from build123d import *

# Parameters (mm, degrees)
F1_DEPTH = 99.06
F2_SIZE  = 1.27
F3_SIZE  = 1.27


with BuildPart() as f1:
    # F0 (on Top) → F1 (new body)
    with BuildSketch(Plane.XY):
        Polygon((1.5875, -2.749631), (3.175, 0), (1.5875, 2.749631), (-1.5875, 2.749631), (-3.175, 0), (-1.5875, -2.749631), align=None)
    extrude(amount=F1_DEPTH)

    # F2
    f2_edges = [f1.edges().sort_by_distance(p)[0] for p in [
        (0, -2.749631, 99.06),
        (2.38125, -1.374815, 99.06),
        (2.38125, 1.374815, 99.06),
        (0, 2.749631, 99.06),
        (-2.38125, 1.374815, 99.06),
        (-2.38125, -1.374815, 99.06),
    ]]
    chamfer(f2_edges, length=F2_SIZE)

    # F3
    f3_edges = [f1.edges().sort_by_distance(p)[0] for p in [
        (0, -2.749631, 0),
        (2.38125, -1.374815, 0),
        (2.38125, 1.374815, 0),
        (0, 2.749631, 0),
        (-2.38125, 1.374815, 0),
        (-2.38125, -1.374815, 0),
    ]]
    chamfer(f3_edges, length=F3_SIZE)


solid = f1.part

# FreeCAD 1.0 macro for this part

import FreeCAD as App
import Part
import Sketcher
Q = App.Units.Quantity


def edges_at(feature, points):
    """Names of the edges that pass closest to the given points."""
    edges = feature.Shape.Edges
    near = lambda p: min(range(len(edges)), key=lambda i: edges[i].distToShape(Part.Vertex(*p))[0])
    return sorted({f"Edge{near(p) + 1}" for p in points})


def add_polygon(sketch, points):
    """Adds a closed chain of lines whose ends are joined by coincident constraints."""
    first, n = sketch.GeometryCount, len(points)
    for a, b in zip(points, points[1:] + points[:1]):
        sketch.addGeometry(Part.LineSegment(App.Vector(*a, 0), App.Vector(*b, 0)), False)
    for i in range(n):
        sketch.addConstraint(Sketcher.Constraint("Coincident", first + i, 2, first + (i + 1) % n, 1))

doc = App.newDocument("Part")
body = doc.addObject("PartDesign::Body", "Body")

sketch1 = body.newObject("Sketcher::SketchObject", "Sketch")
sketch1.AttachmentSupport = (doc.getObject("XY_Plane"), [""])
sketch1.MapMode = "FlatFace"
add_polygon(sketch1, [(1.6, -2.7), (3.2, 0), (1.6, 2.7), (-1.6, 2.7), (-3.2, 0), (-1.6, -2.7)])
sketch1.addConstraint(Sketcher.Constraint("Horizontal", 2))
sketch1.addConstraint(Sketcher.Constraint("Horizontal", 5))
sketch1.addConstraint(Sketcher.Constraint("Symmetric", 0, 2, 3, 2, -1, 1))
sketch1.addConstraint(Sketcher.Constraint("Symmetric", 1, 2, 4, 2, -1, 1))
sketch1.addConstraint(Sketcher.Constraint("PointOnObject", 0, 2, -1))
sketch1.addConstraint(Sketcher.Constraint("Parallel", 0, 3))
sketch1.addConstraint(Sketcher.Constraint("Vertical", 2, 2, 4, 2))
sketch1.addConstraint(Sketcher.Constraint("Angle", 0, Q("60.000003 deg")))
sketch1.addConstraint(Sketcher.Constraint("DistanceX", 2, 2, 2, 1, Q("0.125 in")))
sketch1.addConstraint(Sketcher.Constraint("DistanceX", 3, 2, 0, 2, Q("0.25 in")))
pad1 = body.newObject("PartDesign::Pad", "Pad")
pad1.Profile = sketch1
pad1.Length = Q("3.9 in")
doc.recompute()

chamfer = body.newObject("PartDesign::Chamfer", "Chamfer")
chamfer.Base = (pad1, edges_at(pad1, [
    (0, -2.75, 99.06),
    (2.381, -1.375, 99.06),
    (2.381, 1.375, 99.06),
    (0, 2.75, 99.06),
    (-2.381, 1.375, 99.06),
    (-2.381, -1.375, 99.06),
]))
chamfer.Size = Q("0.05 in")
doc.recompute()

chamfer2 = body.newObject("PartDesign::Chamfer", "Chamfer001")
chamfer2.Base = (chamfer, edges_at(chamfer, [
    (0, -2.75, 0),
    (2.381, -1.375, 0),
    (2.381, 1.375, 0),
    (0, 2.75, 0),
    (-2.381, 1.375, 0),
    (-2.381, -1.375, 0),
]))
chamfer2.Size = Q("0.05 in")

doc.recompute()
